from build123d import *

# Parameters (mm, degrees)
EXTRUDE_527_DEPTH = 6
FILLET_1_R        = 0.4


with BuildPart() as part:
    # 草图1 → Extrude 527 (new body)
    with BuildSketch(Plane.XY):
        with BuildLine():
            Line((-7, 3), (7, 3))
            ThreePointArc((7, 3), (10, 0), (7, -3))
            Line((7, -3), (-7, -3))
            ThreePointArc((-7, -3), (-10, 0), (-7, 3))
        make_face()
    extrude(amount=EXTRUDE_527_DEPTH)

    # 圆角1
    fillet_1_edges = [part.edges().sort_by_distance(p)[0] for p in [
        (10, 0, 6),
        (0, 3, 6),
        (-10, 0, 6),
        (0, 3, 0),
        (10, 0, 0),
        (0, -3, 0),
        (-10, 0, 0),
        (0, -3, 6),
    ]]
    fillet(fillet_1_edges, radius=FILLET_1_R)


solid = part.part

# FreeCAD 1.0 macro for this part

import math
import FreeCAD as App
import Part
import Sketcher
from FreeCAD import Vector
Q = App.Units.Quantity


def edges_at(feature, points):
    """Names of the edges that pass closest to the given points."""
    edges = feature.Shape.Edges
    near = lambda p: min(range(len(edges)), key=lambda i: edges[i].distToShape(Part.Vertex(*p))[0])
    return sorted({f"Edge{near(p) + 1}" for p in points})

doc = App.newDocument("Part")
body = doc.addObject("PartDesign::Body", "Body")

# Sketch on XY plane
sketch1 = doc.addObject("Sketcher::SketchObject", "Sketch")
body.addObject(sketch1)
sketch1.AttachmentSupport = (doc.XY_Plane, [""])
sketch1.MapMode = "FlatFace"
sketch1.addGeometry([
    Part.LineSegment(Vector(7, 3, 0), Vector(-7, 3, 0)),
    Part.ArcOfCircle(Part.Circle(Vector(-7, 0, 0), Vector(0, 0, 1), 3), math.radians(90), math.radians(270)),
    Part.LineSegment(Vector(-7, -3, 0), Vector(7, -3, 0)),
    Part.ArcOfCircle(Part.Circle(Vector(7, 0, 0), Vector(0, 0, 1), 3), math.radians(-90), math.radians(90)),
], False)
sketch1.addConstraint([
    Sketcher.Constraint("Tangent", 0, 2, 1, 1),
    Sketcher.Constraint("Tangent", 1, 2, 2, 1),
    Sketcher.Constraint("Tangent", 2, 2, 3, 1),
    Sketcher.Constraint("Tangent", 3, 2, 0, 1),
    Sketcher.Constraint("Horizontal", 0),
    Sketcher.Constraint("Horizontal", 2),
    Sketcher.Constraint("Symmetric", 1, 3, 3, 3, -1, 1),
    Sketcher.Constraint("Radius", 1, Q("3 mm")),
    Sketcher.Constraint("DistanceX", 0, 2, 0, 1, Q("14 mm")),
])
pad1 = doc.addObject("PartDesign::Pad", "Pad")
body.addObject(pad1)
pad1.Profile = sketch1
pad1.Length = 6
doc.recompute()

fillet = doc.addObject("PartDesign::Fillet", "Fillet")
body.addObject(fillet)
fillet.Base = (pad1, edges_at(pad1, [
    (10, 0, 6),
    (0, 3, 6),
    (-10, 0, 6),
    (0, 3, 0),
    (10, 0, 0),
    (0, -3, 0),
    (-10, 0, 0),
    (0, -3, 6),
]))
fillet.Radius = 0.4

doc.recompute()
